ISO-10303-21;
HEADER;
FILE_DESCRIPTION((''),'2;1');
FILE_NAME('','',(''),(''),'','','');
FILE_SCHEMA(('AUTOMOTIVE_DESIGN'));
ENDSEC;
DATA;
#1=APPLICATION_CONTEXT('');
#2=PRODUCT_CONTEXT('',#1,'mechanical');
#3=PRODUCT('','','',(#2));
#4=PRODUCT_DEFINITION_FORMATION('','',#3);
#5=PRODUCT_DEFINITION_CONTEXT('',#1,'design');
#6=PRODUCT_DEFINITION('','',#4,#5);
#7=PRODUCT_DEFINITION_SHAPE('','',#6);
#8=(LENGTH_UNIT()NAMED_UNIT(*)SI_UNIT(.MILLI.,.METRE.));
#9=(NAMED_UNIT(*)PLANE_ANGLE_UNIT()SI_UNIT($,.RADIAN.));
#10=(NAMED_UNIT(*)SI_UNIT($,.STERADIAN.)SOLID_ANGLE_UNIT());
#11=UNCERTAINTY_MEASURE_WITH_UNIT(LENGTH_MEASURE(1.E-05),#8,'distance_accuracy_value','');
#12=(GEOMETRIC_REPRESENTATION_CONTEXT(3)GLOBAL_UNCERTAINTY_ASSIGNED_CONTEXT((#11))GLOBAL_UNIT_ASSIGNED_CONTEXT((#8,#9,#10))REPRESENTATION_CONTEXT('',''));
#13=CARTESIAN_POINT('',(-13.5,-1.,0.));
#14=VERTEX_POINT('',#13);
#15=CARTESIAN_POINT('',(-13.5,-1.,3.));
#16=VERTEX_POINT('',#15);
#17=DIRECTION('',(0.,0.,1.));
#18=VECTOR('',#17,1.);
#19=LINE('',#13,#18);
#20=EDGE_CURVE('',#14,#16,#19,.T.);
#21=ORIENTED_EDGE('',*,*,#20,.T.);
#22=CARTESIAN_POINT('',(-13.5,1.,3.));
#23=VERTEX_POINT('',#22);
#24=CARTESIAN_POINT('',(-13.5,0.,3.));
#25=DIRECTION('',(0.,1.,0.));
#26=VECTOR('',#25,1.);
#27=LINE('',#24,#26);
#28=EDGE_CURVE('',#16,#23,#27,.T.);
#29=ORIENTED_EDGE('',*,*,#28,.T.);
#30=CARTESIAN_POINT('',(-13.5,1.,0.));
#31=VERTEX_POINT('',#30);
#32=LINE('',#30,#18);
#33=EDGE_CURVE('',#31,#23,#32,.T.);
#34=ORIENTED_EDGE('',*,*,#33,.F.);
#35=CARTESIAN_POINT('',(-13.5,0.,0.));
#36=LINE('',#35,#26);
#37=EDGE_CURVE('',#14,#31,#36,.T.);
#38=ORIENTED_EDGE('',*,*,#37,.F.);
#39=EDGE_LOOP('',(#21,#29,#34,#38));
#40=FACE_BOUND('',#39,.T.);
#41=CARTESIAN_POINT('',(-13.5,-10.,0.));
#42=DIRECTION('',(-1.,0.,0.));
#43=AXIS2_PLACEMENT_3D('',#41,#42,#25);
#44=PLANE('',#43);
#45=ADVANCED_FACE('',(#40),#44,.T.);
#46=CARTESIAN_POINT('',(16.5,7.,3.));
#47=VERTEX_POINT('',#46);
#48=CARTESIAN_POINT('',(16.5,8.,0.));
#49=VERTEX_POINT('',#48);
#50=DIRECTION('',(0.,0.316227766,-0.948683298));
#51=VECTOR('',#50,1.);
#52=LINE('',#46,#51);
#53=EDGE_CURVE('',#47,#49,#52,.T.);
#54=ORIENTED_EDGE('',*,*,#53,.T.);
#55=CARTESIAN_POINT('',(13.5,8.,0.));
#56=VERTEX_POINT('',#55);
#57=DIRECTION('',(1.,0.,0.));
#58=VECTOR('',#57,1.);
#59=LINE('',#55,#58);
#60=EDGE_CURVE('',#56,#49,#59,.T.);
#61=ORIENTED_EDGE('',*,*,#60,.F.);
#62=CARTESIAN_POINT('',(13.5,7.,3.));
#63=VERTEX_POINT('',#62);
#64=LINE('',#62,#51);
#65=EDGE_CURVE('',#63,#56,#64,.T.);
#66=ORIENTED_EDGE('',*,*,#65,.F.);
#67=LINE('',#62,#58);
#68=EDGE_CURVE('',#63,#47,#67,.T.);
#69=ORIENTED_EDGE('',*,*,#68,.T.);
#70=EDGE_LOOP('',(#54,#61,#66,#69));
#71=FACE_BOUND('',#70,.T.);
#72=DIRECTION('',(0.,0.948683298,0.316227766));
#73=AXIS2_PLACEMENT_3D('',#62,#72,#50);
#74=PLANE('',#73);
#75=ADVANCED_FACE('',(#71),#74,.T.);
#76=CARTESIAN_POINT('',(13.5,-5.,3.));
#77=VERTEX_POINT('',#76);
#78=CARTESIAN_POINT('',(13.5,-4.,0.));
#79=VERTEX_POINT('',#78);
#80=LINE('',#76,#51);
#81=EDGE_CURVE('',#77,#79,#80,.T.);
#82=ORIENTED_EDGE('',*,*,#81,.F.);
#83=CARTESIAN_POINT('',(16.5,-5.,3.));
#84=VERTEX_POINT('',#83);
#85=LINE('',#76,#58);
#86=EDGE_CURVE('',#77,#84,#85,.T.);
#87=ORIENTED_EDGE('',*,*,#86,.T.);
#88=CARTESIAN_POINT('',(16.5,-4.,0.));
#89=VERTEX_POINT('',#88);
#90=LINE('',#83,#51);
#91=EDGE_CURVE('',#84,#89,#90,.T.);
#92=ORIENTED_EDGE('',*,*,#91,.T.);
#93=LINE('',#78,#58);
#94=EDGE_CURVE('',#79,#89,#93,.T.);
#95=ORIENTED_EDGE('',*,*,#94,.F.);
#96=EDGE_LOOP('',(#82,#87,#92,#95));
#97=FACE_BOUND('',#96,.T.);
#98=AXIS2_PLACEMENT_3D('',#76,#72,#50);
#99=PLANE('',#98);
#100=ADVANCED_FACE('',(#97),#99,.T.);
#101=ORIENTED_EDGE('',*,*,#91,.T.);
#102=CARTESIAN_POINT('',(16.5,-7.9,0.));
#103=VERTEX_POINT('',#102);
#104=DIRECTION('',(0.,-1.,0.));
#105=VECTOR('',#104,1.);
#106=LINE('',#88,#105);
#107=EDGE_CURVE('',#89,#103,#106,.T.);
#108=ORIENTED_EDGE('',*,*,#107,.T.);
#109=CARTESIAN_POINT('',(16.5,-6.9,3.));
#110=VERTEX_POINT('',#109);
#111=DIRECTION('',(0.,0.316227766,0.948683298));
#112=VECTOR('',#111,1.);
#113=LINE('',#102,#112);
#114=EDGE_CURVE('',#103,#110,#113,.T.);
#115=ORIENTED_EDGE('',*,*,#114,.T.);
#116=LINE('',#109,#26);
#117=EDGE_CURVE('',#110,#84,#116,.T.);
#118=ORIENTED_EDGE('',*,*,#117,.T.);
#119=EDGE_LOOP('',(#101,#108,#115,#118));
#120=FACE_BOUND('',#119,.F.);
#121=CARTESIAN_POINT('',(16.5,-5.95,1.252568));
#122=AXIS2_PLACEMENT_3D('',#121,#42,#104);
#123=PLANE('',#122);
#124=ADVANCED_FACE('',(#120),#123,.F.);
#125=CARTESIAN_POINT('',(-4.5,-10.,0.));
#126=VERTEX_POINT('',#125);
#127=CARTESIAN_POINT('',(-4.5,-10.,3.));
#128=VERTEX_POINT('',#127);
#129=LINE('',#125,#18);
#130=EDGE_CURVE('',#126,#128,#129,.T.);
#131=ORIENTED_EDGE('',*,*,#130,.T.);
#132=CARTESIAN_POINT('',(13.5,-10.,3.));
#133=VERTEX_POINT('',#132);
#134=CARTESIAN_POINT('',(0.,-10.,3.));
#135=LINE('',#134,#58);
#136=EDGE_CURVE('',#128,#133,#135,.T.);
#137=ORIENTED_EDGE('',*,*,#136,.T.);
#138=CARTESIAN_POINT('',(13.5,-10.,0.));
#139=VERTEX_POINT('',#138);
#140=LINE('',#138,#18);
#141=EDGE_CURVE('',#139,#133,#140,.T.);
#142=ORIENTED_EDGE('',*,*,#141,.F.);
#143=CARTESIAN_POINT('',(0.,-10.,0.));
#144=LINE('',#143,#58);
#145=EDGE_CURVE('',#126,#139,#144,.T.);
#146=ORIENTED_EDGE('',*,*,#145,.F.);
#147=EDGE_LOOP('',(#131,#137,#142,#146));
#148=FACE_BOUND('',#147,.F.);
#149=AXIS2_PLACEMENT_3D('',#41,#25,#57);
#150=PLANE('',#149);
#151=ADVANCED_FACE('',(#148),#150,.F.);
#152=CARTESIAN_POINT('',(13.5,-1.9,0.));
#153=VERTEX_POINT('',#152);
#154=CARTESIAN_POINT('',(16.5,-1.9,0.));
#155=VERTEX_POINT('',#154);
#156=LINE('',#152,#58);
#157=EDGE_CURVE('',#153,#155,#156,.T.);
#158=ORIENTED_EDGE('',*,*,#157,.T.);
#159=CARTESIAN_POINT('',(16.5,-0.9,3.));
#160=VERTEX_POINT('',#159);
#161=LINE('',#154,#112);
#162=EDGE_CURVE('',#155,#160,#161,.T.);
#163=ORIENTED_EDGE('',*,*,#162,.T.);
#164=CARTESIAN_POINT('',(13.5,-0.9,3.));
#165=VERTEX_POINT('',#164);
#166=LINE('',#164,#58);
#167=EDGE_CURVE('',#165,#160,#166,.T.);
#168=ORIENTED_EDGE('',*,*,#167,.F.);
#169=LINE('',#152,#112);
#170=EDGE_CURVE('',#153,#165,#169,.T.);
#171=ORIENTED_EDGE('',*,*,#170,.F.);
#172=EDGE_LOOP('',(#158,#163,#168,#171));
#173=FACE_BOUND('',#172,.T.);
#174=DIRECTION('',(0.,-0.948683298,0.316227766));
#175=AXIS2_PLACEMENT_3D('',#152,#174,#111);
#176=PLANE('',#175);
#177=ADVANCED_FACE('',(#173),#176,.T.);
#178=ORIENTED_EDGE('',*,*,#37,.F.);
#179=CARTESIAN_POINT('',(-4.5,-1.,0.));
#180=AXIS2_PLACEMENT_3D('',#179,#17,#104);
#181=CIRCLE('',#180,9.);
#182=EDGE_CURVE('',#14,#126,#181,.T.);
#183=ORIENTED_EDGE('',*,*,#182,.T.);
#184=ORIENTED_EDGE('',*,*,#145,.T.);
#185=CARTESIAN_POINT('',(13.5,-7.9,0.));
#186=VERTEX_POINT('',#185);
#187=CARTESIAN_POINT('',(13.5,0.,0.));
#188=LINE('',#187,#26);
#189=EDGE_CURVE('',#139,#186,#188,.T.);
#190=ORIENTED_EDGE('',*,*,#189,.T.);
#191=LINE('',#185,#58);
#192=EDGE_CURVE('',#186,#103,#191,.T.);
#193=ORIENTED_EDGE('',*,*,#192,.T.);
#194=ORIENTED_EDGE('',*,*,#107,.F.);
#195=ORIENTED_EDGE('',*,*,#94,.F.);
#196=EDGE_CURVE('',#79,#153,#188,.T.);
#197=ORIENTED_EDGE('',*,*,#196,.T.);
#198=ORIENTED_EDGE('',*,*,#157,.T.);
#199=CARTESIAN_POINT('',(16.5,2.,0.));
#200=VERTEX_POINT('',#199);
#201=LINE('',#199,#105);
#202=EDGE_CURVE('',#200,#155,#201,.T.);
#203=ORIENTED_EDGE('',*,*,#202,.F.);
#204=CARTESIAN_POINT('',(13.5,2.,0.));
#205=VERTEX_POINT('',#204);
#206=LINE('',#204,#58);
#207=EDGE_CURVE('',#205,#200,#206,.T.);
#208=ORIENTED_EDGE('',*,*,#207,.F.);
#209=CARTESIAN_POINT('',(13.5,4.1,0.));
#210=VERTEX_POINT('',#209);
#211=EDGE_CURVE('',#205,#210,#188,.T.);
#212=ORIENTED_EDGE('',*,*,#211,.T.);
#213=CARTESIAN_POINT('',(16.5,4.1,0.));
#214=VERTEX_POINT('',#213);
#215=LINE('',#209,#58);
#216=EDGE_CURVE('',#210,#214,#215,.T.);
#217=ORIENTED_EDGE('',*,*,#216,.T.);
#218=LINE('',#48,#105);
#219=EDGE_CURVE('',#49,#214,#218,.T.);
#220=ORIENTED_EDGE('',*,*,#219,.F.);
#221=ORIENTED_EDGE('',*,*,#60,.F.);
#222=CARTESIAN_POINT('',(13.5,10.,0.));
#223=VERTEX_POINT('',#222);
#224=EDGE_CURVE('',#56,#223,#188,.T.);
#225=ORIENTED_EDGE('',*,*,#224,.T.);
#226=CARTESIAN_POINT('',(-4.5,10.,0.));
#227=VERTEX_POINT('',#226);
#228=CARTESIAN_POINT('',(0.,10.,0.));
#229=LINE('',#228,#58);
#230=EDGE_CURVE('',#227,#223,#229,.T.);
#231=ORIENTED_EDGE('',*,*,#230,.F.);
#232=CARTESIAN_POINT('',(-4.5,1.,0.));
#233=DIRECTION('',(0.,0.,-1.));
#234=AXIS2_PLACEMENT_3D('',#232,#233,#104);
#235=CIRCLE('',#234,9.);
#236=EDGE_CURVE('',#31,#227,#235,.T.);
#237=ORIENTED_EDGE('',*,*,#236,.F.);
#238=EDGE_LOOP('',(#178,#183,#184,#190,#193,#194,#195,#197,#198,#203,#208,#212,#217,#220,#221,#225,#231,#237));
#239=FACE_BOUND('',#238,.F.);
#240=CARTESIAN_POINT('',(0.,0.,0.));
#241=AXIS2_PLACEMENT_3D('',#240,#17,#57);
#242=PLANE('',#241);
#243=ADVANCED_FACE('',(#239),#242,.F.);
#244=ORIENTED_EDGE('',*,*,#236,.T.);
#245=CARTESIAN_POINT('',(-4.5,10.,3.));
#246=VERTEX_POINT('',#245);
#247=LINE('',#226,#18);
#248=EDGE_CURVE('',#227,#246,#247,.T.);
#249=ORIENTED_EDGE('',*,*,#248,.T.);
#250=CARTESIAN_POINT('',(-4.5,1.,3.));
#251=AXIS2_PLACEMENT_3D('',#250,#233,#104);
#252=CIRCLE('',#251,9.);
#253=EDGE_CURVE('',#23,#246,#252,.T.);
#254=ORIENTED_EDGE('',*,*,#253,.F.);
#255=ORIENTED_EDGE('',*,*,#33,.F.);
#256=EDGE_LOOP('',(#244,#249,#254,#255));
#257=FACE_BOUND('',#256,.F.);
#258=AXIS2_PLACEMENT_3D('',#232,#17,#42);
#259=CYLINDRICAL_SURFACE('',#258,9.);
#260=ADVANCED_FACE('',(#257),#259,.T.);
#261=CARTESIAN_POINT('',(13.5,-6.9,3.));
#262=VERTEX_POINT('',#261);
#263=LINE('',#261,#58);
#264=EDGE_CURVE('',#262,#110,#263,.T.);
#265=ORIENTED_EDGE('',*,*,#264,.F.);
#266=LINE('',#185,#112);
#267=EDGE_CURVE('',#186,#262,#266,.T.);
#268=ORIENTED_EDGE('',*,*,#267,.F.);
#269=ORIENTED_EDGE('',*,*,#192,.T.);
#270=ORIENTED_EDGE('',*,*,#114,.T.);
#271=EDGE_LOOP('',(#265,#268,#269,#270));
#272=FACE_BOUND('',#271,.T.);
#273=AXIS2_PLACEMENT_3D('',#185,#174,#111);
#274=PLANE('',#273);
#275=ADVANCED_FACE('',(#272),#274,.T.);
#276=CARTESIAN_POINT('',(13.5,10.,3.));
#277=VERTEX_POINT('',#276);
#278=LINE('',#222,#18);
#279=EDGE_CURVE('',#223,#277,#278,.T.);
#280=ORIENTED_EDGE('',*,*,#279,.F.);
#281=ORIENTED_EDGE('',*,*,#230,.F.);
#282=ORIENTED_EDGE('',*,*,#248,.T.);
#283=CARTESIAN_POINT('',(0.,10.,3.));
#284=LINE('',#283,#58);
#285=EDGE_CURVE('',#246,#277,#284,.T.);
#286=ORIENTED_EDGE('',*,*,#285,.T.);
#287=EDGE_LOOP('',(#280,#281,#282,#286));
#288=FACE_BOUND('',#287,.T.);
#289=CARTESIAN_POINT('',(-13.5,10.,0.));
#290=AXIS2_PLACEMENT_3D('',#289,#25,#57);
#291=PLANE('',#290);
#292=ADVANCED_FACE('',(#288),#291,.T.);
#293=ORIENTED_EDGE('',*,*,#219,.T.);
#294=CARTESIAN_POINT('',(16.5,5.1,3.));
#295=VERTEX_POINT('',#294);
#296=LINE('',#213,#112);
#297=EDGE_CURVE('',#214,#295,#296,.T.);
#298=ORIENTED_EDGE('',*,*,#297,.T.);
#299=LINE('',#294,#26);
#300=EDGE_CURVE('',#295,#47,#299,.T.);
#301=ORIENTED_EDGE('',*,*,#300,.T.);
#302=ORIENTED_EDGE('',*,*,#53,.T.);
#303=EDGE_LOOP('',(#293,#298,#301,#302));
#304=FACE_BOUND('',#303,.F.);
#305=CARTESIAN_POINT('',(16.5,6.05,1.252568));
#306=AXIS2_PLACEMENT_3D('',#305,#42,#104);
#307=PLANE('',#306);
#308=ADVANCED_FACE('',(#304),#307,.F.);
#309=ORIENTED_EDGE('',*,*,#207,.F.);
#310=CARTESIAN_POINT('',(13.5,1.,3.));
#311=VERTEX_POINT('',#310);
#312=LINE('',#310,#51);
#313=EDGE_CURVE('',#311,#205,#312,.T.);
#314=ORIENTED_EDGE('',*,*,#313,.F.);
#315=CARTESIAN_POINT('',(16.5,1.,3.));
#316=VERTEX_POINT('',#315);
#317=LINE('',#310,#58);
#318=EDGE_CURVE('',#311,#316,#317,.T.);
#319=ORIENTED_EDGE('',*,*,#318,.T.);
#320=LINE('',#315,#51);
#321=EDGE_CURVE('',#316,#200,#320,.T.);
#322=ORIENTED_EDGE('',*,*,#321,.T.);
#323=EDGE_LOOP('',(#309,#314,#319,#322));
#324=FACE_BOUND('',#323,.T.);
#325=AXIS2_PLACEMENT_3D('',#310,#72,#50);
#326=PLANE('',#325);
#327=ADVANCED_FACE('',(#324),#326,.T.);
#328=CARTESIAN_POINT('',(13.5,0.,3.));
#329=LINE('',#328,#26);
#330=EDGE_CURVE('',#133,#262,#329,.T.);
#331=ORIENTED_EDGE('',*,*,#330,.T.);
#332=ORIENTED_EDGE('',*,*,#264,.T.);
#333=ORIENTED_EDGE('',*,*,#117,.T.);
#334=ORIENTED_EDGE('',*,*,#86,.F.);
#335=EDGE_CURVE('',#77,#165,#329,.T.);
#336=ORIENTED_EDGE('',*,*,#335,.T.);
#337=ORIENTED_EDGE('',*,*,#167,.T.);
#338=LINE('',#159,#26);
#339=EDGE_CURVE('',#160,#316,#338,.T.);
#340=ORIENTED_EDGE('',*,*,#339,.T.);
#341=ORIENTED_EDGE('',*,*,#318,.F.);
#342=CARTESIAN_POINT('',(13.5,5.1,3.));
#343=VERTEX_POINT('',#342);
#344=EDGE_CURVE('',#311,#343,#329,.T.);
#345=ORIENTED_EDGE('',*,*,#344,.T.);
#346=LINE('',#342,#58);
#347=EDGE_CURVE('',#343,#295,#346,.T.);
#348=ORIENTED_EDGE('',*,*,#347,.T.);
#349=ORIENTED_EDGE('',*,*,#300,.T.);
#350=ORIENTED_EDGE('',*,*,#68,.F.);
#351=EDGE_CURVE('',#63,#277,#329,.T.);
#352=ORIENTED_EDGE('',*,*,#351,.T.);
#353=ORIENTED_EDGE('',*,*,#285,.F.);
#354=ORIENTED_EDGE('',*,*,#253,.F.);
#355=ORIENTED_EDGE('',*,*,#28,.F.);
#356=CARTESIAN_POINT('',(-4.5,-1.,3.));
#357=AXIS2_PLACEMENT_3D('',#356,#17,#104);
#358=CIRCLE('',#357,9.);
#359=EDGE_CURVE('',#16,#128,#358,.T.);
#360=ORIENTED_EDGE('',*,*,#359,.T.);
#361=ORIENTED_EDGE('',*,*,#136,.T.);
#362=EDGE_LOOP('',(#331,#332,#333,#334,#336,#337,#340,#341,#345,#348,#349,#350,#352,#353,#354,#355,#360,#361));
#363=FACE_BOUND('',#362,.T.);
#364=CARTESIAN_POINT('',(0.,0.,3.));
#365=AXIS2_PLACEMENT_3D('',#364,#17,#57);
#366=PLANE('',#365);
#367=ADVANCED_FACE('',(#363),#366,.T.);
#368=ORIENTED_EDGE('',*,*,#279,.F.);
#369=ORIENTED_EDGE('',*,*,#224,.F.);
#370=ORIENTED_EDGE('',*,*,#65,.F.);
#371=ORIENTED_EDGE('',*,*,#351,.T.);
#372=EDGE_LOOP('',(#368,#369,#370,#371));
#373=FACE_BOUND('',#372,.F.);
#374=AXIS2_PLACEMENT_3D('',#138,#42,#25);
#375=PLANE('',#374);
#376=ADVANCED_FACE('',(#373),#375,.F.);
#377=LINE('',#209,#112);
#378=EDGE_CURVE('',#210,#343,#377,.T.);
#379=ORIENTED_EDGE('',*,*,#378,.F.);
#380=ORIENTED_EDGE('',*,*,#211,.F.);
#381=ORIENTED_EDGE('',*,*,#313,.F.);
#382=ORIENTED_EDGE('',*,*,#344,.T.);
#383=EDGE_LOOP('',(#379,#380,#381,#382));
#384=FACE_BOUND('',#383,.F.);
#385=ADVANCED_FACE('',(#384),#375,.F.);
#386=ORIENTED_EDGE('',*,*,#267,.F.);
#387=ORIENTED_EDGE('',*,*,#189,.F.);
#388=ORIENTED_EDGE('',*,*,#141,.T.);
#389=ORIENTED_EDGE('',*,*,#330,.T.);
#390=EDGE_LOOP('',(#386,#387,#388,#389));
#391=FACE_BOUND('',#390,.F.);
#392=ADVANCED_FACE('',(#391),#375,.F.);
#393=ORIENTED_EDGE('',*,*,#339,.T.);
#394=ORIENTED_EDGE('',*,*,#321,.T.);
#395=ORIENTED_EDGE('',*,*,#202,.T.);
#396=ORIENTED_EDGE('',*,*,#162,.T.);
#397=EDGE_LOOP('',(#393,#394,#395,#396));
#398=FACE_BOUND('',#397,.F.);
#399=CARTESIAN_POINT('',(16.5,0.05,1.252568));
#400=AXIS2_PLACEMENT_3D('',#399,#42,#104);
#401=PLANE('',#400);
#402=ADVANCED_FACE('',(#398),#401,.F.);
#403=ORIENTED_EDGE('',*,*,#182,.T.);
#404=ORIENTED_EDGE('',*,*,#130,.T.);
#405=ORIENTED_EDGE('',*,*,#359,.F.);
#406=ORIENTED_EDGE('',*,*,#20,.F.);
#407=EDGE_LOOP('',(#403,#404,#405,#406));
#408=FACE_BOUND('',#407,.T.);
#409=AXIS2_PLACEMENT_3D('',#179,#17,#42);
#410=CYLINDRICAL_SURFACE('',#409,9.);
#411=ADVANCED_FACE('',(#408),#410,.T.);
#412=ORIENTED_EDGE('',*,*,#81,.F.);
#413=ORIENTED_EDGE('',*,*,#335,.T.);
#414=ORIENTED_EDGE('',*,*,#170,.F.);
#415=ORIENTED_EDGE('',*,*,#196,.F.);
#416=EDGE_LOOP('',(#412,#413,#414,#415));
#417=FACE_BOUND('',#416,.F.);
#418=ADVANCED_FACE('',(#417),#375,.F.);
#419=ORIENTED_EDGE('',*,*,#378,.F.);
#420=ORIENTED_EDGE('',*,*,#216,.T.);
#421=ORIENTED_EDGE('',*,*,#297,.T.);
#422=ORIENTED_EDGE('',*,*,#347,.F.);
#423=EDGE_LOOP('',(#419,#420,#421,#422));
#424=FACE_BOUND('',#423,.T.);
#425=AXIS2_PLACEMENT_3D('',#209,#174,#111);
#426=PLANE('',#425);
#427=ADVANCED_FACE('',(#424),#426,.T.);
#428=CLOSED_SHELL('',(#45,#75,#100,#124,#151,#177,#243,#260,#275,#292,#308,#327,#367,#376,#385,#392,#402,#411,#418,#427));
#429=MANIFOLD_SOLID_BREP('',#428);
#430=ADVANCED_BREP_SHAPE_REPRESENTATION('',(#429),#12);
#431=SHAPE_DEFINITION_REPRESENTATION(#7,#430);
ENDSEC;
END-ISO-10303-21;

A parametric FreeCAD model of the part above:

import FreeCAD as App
import Part
import Sketcher

V = App.Vector


def edges_at(feature, points):
    """Names of the edges that pass closest to the given points."""
    edges = feature.Shape.Edges
    near = lambda p: min(range(len(edges)), key=lambda i: edges[i].distToShape(Part.Vertex(*p))[0])
    return sorted({f"Edge{near(p) + 1}" for p in points})

doc = App.newDocument("Part")
body = doc.addObject("PartDesign::Body", "Body")

# Sketch on XY plane
sketch1 = body.newObject("Sketcher::SketchObject", "Sketch")
sketch1.AttachmentSupport = (doc.getObject("XY_Plane"), [""])
sketch1.MapMode = "FlatFace"
sketch1.addGeometry([
    Part.LineSegment(V(-14, 10, 0), V(-14, -10, 0)),
    Part.LineSegment(V(-14, -10, 0), V(14, -10, 0)),
    Part.LineSegment(V(14, -10, 0), V(14, 10, 0)),
    Part.LineSegment(V(14, 10, 0), V(-14, 10, 0)),
], False)
sketch1.addConstraint([
    Sketcher.Constraint("Coincident", 0, 2, 1, 1),
    Sketcher.Constraint("Coincident", 1, 2, 2, 1),
    Sketcher.Constraint("Coincident", 2, 2, 3, 1),
    Sketcher.Constraint("Coincident", 3, 2, 0, 1),
    Sketcher.Constraint("Vertical", 0),
    Sketcher.Constraint("Horizontal", 1),
    Sketcher.Constraint("Vertical", 2),
    Sketcher.Constraint("Horizontal", 3),
    Sketcher.Constraint("Symmetric", 0, 2, 2, 2, -1, 1),
    Sketcher.Constraint("DistanceX", 1, 1, 1, 2, 27.0),
    Sketcher.Constraint("DistanceY", 0, 2, 0, 1, 20.0),
])
pad1 = body.newObject("PartDesign::Pad", "Pad")
pad1.Profile = sketch1
pad1.Length = 3

# Sketch on YZ plane
sketch2 = body.newObject("Sketcher::SketchObject", "Sketch001")
sketch2.AttachmentSupport = (doc.getObject("YZ_Plane"), [""])
sketch2.MapMode = "FlatFace"
sketch2.AttachmentOffset = App.Placement(V(0, 0, 13.5), App.Rotation())
sketch2.addGeometry([
    Part.LineSegment(V(-5, 3, 0), V(-6.9, 3, 0)),
    Part.LineSegment(V(-6.9, 3, 0), V(-7.9, 0, 0)),
    Part.LineSegment(V(-7.9, 0, 0), V(-4, 0, 0)),
    Part.LineSegment(V(-4, 0, 0), V(-5, 3, 0)),
], False)
sketch2.addConstraint([
    Sketcher.Constraint("Coincident", 0, 2, 1, 1),
    Sketcher.Constraint("Coincident", 1, 2, 2, 1),
    Sketcher.Constraint("Coincident", 2, 2, 3, 1),
    Sketcher.Constraint("Coincident", 3, 2, 0, 1),
    Sketcher.Constraint("Horizontal", 0),
    Sketcher.Constraint("Horizontal", 2),
    Sketcher.Constraint("PointOnObject", 1, 2, -1),
    Sketcher.Constraint("Equal", 1, 3),
    Sketcher.Constraint("DistanceX", 0, 2, 0, 1, 1.9),
    Sketcher.Constraint("DistanceX", 2, 1, 2, 2, 3.9),
    Sketcher.Constraint("DistanceY", -1, 1, 0, 2, 3.0),
    Sketcher.Constraint("DistanceX", 2, 2, -1, 1, 4.0),
])
pad2 = body.newObject("PartDesign::Pad", "Pad001")
pad2.Profile = sketch2
pad2.Length = 3
doc.recompute()

linearpattern = body.newObject("PartDesign::LinearPattern", "LinearPattern")
linearpattern.Originals = [pad2]
linearpattern.Direction = (doc.getObject("Y_Axis"), [""])
linearpattern.Mode = "offset"
linearpattern.Offset = 6
linearpattern.Occurrences = 3
body.Tip = linearpattern
doc.recompute()

fillet = body.newObject("PartDesign::Fillet", "Fillet")
fillet.Base = (linearpattern, edges_at(linearpattern, [(-13.5, 10, 1.5), (-13.5, -10, 1.5)]))
fillet.Radius = 9

doc.recompute()
